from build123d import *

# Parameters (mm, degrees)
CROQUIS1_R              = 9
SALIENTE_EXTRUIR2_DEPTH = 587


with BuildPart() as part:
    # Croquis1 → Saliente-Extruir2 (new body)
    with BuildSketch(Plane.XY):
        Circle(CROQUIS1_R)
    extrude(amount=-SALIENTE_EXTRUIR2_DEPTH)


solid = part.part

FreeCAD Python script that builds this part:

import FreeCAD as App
import Part
import Sketcher

doc = App.newDocument("Part")
body = doc.addObject("PartDesign::Body", "Body")

# Sketch on XY plane
sketch1 = body.newObject("Sketcher::SketchObject", "Sketch")
sketch1.AttachmentSupport = (doc.getObject("XY_Plane"), [""])
sketch1.MapMode = "FlatFace"
sketch1.addGeometry(Part.Circle(App.Vector(0, 0, 0), App.Vector(0, 0, 1), 9), False)
sketch1.addConstraint([
    Sketcher.Constraint("Coincident", 0, 3, -1, 1),
    Sketcher.Constraint("Diameter", 0, 18.0),
])
pad1 = body.newObject("PartDesign::Pad", "Pad")
pad1.Profile = sketch1
pad1.Length = 587
pad1.Reversed = True

doc.recompute()
